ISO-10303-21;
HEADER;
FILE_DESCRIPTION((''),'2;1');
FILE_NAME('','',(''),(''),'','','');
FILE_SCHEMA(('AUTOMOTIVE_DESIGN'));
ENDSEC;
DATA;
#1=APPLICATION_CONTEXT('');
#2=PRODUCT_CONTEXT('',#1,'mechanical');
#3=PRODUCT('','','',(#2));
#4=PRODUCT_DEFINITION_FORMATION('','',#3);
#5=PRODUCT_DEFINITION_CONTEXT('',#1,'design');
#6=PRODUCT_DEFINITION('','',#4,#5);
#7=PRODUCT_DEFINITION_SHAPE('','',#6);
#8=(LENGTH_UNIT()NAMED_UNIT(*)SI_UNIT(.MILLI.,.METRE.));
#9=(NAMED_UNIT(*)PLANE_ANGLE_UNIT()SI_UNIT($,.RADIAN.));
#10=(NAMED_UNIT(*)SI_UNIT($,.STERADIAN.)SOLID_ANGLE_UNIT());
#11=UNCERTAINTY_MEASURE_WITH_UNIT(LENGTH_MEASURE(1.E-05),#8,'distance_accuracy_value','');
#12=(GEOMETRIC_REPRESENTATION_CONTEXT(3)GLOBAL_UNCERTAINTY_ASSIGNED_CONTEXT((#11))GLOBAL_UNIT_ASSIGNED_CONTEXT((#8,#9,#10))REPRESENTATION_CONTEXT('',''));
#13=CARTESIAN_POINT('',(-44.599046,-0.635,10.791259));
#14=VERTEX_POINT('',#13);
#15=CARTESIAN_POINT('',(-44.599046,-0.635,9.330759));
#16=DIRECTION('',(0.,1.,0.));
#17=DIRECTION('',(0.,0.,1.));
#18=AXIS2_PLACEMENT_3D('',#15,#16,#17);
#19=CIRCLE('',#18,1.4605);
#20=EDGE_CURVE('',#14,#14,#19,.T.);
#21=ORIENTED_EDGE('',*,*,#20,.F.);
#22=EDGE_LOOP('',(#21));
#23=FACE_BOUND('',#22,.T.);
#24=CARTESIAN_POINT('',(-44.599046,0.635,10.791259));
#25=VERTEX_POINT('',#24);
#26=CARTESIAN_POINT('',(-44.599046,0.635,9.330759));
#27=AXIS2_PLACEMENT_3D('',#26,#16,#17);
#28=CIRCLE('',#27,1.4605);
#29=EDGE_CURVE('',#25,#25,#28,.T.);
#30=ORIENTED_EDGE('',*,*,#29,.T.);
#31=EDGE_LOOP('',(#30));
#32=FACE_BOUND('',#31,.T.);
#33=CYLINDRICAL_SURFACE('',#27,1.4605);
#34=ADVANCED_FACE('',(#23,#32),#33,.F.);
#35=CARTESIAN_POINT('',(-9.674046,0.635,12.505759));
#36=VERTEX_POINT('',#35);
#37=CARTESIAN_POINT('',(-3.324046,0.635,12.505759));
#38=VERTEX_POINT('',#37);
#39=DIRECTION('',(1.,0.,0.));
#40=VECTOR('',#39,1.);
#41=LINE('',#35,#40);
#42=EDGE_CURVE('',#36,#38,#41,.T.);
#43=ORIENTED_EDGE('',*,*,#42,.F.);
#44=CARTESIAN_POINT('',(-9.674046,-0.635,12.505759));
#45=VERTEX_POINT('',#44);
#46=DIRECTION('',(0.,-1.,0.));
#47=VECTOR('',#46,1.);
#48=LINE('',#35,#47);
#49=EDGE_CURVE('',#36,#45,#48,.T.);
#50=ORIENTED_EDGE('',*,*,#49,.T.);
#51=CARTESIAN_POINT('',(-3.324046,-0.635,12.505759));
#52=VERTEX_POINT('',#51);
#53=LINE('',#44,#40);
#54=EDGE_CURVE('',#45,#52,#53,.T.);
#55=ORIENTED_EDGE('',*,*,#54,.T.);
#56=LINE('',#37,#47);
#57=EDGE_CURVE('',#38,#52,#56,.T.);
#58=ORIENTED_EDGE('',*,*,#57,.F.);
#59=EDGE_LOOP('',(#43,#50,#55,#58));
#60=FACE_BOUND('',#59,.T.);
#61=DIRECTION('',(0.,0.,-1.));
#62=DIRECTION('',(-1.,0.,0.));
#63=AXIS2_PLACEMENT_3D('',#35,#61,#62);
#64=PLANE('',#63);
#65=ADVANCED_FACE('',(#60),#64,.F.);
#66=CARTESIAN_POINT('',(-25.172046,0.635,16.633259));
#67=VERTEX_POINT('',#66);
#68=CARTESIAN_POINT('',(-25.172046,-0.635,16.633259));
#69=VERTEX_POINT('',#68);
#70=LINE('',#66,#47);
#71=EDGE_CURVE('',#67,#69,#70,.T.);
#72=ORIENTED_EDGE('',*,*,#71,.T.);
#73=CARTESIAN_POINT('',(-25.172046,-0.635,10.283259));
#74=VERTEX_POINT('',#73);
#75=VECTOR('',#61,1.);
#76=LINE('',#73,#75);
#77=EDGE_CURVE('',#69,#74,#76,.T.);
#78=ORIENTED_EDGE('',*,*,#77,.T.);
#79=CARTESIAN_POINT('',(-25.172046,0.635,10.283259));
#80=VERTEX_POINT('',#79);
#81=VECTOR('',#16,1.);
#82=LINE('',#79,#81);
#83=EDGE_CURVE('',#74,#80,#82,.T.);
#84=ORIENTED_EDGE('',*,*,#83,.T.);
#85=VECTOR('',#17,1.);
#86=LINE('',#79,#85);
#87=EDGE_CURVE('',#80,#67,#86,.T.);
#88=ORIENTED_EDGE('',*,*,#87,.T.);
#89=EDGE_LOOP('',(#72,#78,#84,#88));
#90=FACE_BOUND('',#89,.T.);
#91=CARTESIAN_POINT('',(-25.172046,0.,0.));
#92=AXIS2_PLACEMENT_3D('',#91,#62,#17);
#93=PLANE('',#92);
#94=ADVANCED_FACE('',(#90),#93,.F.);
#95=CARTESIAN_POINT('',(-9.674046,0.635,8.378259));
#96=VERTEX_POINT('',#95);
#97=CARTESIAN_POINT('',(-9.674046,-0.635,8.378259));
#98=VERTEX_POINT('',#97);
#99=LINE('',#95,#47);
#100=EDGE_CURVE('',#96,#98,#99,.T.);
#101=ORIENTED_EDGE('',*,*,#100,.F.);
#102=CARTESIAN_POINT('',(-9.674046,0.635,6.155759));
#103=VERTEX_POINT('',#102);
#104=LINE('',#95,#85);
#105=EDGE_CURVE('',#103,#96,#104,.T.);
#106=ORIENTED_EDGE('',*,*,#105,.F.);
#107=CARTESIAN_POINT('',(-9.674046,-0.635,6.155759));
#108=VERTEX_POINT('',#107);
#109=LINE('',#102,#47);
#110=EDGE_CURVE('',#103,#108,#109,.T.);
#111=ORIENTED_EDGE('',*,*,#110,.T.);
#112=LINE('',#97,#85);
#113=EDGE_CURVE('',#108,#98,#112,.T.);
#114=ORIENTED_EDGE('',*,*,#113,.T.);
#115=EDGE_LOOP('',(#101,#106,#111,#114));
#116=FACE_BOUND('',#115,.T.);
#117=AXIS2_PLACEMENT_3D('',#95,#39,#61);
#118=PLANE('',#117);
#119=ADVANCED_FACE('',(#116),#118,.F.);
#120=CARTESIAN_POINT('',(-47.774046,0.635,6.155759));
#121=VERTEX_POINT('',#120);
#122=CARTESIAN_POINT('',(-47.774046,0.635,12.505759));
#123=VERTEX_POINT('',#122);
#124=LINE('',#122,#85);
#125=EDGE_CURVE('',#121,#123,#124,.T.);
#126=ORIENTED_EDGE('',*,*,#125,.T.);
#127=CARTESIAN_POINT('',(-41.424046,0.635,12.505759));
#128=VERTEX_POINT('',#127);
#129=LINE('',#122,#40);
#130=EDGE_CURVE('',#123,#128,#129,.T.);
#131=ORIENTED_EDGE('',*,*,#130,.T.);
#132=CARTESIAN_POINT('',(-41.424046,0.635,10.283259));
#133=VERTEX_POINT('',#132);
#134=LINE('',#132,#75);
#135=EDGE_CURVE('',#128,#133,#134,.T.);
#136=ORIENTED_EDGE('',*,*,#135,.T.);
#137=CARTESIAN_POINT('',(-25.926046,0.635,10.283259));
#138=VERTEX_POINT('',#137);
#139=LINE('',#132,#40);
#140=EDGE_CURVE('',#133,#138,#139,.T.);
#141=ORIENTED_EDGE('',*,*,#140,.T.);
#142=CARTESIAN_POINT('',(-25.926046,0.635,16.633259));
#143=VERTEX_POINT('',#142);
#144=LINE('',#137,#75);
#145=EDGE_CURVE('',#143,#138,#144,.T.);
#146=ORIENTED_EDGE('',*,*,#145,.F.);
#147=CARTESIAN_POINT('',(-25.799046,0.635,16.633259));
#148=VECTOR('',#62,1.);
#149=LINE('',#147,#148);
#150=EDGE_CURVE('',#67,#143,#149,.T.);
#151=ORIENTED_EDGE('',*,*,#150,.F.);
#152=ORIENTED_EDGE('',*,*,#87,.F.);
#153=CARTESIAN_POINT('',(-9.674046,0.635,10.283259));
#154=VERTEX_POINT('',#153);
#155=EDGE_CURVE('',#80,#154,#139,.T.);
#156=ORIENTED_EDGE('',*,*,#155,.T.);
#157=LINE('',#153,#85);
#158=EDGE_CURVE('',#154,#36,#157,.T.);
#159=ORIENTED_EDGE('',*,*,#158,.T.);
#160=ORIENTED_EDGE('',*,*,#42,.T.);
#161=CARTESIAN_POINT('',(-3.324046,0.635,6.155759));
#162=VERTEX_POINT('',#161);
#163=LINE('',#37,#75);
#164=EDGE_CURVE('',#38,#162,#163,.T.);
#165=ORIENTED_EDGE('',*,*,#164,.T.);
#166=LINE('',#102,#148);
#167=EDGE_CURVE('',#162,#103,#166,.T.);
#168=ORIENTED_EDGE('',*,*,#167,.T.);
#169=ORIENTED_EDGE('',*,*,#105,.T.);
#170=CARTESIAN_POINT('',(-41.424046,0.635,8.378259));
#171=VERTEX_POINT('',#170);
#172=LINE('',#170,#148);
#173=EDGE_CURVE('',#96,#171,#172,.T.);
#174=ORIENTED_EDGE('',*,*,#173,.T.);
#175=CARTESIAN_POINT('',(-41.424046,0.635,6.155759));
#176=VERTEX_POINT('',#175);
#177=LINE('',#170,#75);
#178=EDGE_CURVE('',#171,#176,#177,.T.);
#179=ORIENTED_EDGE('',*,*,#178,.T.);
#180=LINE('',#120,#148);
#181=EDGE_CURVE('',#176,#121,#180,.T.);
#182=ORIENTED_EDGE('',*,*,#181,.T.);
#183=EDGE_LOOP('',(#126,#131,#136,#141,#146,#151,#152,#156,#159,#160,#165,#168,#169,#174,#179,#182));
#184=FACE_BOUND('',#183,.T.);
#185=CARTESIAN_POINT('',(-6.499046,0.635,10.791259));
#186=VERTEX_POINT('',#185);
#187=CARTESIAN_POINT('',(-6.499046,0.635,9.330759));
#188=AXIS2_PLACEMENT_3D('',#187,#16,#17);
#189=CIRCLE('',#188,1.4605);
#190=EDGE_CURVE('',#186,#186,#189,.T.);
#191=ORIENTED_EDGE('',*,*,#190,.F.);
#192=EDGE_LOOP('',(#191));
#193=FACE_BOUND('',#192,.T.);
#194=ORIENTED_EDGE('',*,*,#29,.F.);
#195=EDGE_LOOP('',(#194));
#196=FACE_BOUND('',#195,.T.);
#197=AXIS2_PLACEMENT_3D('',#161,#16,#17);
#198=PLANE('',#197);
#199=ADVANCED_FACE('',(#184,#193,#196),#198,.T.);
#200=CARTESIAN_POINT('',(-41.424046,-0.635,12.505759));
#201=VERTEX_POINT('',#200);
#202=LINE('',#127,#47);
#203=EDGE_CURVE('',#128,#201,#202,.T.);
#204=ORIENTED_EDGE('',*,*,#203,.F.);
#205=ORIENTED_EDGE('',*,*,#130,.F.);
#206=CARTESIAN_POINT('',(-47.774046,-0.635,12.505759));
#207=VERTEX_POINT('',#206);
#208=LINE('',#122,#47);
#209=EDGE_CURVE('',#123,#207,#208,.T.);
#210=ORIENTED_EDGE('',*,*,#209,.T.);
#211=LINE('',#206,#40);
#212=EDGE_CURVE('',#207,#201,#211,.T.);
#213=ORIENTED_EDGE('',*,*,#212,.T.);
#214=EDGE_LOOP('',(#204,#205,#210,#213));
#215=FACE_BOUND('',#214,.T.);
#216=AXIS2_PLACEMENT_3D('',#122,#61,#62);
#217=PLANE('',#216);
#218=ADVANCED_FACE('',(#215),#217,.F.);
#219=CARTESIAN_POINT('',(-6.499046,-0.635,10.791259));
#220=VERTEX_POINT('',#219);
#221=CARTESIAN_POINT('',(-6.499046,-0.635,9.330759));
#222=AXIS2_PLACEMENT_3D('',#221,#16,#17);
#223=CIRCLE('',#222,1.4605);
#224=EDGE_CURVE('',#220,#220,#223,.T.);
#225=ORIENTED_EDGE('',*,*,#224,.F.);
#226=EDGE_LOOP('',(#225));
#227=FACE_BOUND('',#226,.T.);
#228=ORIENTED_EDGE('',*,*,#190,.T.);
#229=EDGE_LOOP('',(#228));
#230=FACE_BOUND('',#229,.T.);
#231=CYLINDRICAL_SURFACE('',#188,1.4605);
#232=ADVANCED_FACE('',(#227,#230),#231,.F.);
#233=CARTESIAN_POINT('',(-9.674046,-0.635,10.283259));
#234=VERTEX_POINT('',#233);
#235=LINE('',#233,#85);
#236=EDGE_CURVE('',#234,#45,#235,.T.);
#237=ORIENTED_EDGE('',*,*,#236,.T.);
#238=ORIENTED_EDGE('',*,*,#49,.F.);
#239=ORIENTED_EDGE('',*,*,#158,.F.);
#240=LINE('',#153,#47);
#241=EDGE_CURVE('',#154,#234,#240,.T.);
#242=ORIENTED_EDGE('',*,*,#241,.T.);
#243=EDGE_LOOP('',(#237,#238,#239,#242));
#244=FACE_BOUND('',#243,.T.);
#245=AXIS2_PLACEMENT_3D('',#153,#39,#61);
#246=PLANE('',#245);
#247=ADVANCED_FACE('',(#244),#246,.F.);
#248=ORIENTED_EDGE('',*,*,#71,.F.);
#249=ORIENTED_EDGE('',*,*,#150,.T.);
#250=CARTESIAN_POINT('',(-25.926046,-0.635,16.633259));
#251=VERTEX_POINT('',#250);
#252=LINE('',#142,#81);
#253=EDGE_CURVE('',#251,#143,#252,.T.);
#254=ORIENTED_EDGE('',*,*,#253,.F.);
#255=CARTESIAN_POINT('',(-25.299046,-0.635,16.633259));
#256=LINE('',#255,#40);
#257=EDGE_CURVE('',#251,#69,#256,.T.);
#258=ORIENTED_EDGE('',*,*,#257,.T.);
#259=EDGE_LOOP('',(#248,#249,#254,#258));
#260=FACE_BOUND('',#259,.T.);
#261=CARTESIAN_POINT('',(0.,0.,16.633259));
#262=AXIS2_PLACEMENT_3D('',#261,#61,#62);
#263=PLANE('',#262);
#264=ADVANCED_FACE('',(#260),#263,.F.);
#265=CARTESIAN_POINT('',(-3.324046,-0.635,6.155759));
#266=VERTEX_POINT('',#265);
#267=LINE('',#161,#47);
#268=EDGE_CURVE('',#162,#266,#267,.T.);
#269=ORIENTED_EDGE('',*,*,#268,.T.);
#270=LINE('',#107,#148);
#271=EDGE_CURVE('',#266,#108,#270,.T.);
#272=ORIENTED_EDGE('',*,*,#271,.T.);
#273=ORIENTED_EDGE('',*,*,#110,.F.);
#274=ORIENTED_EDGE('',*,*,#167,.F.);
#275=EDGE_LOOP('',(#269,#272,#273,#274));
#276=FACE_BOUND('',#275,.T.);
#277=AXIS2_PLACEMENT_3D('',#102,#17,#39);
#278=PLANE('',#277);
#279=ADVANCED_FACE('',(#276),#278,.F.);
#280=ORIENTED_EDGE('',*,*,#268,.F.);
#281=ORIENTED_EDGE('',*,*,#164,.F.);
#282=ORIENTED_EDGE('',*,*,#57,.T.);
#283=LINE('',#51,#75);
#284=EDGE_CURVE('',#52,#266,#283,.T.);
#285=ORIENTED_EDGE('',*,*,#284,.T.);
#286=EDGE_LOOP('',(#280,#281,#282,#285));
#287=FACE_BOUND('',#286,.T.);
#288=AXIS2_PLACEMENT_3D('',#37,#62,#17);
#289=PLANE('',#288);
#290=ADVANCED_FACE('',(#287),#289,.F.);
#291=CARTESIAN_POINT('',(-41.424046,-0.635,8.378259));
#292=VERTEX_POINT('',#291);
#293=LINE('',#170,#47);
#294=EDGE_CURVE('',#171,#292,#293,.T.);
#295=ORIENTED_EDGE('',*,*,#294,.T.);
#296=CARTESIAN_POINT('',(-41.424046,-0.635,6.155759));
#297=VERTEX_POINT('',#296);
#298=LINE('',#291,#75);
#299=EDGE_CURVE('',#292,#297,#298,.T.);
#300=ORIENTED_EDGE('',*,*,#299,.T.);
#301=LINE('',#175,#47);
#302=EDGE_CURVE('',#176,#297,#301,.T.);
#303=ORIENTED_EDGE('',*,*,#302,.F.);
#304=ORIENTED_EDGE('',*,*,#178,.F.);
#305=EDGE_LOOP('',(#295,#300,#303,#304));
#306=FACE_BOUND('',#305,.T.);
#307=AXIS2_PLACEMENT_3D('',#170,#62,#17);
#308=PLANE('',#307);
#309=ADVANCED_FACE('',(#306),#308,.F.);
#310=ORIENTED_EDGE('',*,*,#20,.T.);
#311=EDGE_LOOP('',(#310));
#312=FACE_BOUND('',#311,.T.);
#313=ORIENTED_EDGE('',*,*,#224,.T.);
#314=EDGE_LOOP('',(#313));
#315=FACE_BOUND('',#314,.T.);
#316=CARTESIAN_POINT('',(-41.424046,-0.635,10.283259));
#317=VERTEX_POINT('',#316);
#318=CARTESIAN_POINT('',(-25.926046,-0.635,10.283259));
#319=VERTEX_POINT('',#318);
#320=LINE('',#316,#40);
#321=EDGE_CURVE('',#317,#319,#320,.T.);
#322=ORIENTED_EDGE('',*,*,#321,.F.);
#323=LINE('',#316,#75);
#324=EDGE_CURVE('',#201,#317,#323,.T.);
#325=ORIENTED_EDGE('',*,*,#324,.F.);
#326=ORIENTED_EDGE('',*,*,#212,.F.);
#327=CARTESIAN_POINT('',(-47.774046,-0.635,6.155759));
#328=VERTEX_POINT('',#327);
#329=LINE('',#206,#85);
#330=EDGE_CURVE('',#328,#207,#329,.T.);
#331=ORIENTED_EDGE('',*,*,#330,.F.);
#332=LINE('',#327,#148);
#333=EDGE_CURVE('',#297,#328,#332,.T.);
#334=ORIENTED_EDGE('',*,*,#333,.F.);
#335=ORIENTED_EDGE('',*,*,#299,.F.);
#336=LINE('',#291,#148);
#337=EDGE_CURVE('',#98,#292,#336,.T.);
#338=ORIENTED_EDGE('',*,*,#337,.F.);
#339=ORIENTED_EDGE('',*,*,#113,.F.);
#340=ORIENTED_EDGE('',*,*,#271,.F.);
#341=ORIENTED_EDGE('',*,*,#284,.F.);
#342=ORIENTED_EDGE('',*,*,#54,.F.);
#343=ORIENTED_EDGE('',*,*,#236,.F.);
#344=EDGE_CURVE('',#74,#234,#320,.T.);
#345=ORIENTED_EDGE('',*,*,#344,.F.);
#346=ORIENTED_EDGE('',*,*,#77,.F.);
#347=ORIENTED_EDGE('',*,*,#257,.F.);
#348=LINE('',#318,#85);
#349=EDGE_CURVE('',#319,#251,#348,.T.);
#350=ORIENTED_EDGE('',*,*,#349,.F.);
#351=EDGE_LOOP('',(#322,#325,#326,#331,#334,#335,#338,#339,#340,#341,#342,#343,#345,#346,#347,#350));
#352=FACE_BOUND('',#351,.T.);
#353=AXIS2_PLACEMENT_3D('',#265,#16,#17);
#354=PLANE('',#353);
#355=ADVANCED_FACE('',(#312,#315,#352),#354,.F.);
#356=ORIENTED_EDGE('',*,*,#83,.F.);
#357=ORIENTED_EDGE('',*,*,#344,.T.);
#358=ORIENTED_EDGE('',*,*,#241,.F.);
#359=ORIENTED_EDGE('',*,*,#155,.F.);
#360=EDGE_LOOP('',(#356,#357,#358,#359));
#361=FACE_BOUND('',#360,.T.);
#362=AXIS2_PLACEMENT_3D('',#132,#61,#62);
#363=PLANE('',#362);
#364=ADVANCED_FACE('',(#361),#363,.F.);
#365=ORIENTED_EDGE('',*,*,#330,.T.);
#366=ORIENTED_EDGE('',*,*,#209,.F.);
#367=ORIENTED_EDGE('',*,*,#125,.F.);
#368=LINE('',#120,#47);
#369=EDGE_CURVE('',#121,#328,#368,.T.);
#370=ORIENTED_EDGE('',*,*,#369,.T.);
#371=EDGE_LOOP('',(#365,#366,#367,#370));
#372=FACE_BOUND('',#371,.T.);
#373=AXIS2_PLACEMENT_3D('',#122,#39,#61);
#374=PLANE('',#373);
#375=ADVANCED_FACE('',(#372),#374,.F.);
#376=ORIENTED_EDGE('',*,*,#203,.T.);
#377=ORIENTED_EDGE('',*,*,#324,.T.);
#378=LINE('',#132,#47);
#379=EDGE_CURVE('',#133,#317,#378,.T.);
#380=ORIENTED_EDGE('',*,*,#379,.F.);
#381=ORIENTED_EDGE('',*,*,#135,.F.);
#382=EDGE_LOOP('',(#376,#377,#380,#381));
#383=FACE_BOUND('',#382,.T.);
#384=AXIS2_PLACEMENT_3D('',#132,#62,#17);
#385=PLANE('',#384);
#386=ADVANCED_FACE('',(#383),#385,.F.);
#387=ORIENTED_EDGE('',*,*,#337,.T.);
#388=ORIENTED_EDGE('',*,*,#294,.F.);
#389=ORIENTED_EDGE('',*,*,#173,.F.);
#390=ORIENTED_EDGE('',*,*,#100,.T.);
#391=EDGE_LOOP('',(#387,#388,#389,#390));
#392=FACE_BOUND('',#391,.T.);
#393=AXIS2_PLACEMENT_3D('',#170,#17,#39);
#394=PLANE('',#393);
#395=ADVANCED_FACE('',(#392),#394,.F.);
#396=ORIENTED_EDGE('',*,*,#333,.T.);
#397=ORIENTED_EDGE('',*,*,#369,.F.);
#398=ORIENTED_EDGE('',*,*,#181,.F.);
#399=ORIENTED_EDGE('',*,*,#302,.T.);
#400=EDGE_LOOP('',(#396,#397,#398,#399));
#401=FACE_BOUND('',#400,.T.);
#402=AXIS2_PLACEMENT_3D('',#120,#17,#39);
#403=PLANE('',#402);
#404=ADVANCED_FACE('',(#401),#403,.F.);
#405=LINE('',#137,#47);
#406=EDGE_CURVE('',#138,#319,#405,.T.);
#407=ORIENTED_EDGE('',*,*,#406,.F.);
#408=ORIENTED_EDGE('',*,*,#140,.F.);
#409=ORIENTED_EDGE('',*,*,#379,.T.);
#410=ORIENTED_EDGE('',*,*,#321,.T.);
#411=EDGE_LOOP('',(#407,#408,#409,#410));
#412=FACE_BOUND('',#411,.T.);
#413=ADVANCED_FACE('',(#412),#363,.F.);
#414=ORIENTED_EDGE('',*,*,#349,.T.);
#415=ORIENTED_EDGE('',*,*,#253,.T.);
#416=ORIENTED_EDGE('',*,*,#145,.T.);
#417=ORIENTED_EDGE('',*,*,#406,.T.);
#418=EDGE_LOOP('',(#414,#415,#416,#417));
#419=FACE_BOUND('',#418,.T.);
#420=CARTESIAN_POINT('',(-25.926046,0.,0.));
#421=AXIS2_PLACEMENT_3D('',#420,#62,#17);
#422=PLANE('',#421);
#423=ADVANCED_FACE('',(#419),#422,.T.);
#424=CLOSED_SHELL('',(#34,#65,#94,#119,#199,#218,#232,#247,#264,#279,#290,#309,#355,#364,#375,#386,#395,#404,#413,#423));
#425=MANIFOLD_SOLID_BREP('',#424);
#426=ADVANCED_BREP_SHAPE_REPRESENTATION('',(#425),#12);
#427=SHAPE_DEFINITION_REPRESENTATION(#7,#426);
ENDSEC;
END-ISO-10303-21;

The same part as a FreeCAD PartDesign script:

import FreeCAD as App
import Part
import Sketcher
Q = App.Units.Quantity


def add_polygon(sketch, points):
    """Adds a closed chain of lines whose ends are joined by coincident constraints."""
    first, n = sketch.GeometryCount, len(points)
    for a, b in zip(points, points[1:] + points[:1]):
        sketch.addGeometry(Part.LineSegment(App.Vector(*a, 0), App.Vector(*b, 0)), False)
    for i in range(n):
        sketch.addConstraint(Sketcher.Constraint("Coincident", first + i, 2, first + (i + 1) % n, 1))

doc = App.newDocument("Part")
body = doc.addObject("PartDesign::Body", "Body")

# Sketch on XZ plane
sketch1 = body.newObject("Sketcher::SketchObject", "Sketch")
sketch1.AttachmentSupport = (doc.getObject("XZ_Plane"), [""])
sketch1.MapMode = "FlatFace"
add_polygon(sketch1, [(-41.4, 12.5), (-41.4, 10.3), (-9.7, 10.3), (-9.7, 12.5), (-3.3, 12.5), (-3.3, 6.2), (-9.7, 6.2), (-9.7, 8.4), (-41.4, 8.4), (-41.4, 6.2), (-47.8, 6.2), (-47.8, 12.5)])  # lines 0-11
sketch1.addConstraint([
    Sketcher.Constraint("Vertical", 0),
    Sketcher.Constraint("Horizontal", 1),
    Sketcher.Constraint("Vertical", 2),
    Sketcher.Constraint("Horizontal", 3),
    Sketcher.Constraint("Vertical", 4),
    Sketcher.Constraint("Horizontal", 5),
    Sketcher.Constraint("Vertical", 6),
    Sketcher.Constraint("Horizontal", 7),
    Sketcher.Constraint("Vertical", 8),
    Sketcher.Constraint("Horizontal", 9),
    Sketcher.Constraint("Vertical", 10),
    Sketcher.Constraint("Horizontal", 11),
    Sketcher.Constraint("Horizontal", 5, 2, 8, 2),
    Sketcher.Constraint("Horizontal", 3, 2, 10, 2),
    Sketcher.Constraint("Vertical", 2, 2, 5, 2),
    Sketcher.Constraint("Vertical", 0, 2, 7, 2),
    Sketcher.Constraint("Equal", 5, 9),
    Sketcher.Constraint("Equal", 11, 4),
    Sketcher.Constraint("Equal", 2, 6),
    Sketcher.Constraint("DistanceX", 1, 1, 1, 2, Q("1.25 in")),
    Sketcher.Constraint("DistanceX", 3, 1, 3, 2, Q("0.25 in")),
    Sketcher.Constraint("DistanceY", 0, 2, 0, 1, Q("0.0875 in")),
    Sketcher.Constraint("DistanceY", -1, 1, 0, 2, 10.283259),
    Sketcher.Constraint("DistanceX", 0, 2, -1, 1, 41.424046),
])
pad1 = body.newObject("PartDesign::Pad", "Pad")
pad1.Profile = sketch1
pad1.Length = Q("0.05 in")
pad1.Midplane = True

# Sketch on XZ plane
sketch2 = body.newObject("Sketcher::SketchObject", "Sketch001")
sketch2.AttachmentSupport = (doc.getObject("XZ_Plane"), [""])
sketch2.MapMode = "FlatFace"
sketch2.AttachmentOffset = App.Placement(App.Vector(0, 0, -0.025 * 25.4), App.Rotation())
sketch2.addGeometry(Part.Circle(App.Vector(-44.6, 9.3, 0), App.Vector(0, 0, 1), 1.5), False)
sketch2.addConstraint([
    Sketcher.Constraint("Diameter", 0, Q("0.115 in")),
    Sketcher.Constraint("DistanceY", -1, 1, 0, 3, 9.330759),
    Sketcher.Constraint("DistanceX", 0, 3, -1, 1, 44.599046),
])
doc.recompute()
hole = body.newObject("PartDesign::Hole", "Hole")
hole.Profile = sketch2
hole.ThreadType = "None"
hole.Diameter = Q("0.115 in")
hole.DepthType = "ThroughAll"
hole.Reversed = True
doc.recompute()

datumplane = body.newObject("PartDesign::Plane", "DatumPlane")
datumplane.AttachmentSupport = (doc.getObject("YZ_Plane"), [""])
datumplane.MapMode = "FlatFace"
datumplane.AttachmentOffset = App.Placement(App.Vector(0, 0, -25.549046), App.Rotation())
mirrored = body.newObject("PartDesign::Mirrored", "Mirrored")
mirrored.Originals = [hole]
mirrored.MirrorPlane = (datumplane, [""])
body.Tip = mirrored

# Sketch on XY plane
sketch3 = body.newObject("Sketcher::SketchObject", "Sketch002")
sketch3.AttachmentSupport = (doc.getObject("XY_Plane"), [""])
sketch3.MapMode = "FlatFace"
sketch3.AttachmentOffset = App.Placement(App.Vector(0, 0, 10.283259), App.Rotation())
add_polygon(sketch3, [(-25.8, 0.6), (-25.8, -0.6), (-25.3, -0.6), (-25.3, 0.6)])  # lines 0-3
sketch3.addConstraint([
    Sketcher.Constraint("Vertical", 0),
    Sketcher.Constraint("Horizontal", 1),
    Sketcher.Constraint("Vertical", 2),
    Sketcher.Constraint("Horizontal", 3),
    Sketcher.Constraint("DistanceY", 0, 2, 0, 1, Q("0.05 in")),
    Sketcher.Constraint("DistanceY", 0, 2, -1, 1, Q("0.025 in")),
    Sketcher.Constraint("DistanceX", 1, 1, 1, 2, 0.5),
    Sketcher.Constraint("DistanceX", 0, 2, -1, 1, 25.799046),
])
pad2 = body.newObject("PartDesign::Pad", "Pad001")
pad2.Profile = sketch3
pad2.Length = Q("0.25 in")

# Sketch on YZ plane
sketch4 = body.newObject("Sketcher::SketchObject", "Sketch003")
sketch4.AttachmentSupport = (doc.getObject("YZ_Plane"), [""])
sketch4.MapMode = "FlatFace"
sketch4.AttachmentOffset = App.Placement(App.Vector(0, 0, -25.799046), App.Rotation())
add_polygon(sketch4, [(0.6, 10.3), (-0.6, 10.3), (-0.6, 16.6), (0.6, 16.6)])  # lines 0-3
sketch4.addConstraint([
    Sketcher.Constraint("Horizontal", 0),
    Sketcher.Constraint("Vertical", 1),
    Sketcher.Constraint("Horizontal", 2),
    Sketcher.Constraint("Vertical", 3),
    Sketcher.Constraint("DistanceX", 0, 2, 0, 1, Q("0.05 in")),
    Sketcher.Constraint("DistanceY", 1, 1, 1, 2, Q("0.25 in")),
    Sketcher.Constraint("DistanceX", 0, 2, -1, 1, Q("0.025 in")),
    Sketcher.Constraint("DistanceY", -1, 1, 0, 2, 10.283259),
])
pad3 = body.newObject("PartDesign::Pad", "Pad002")
pad3.Profile = sketch4
pad3.Length = Q("0.005 in")
pad3.Reversed = True

# Sketch on YZ plane
sketch5 = body.newObject("Sketcher::SketchObject", "Sketch004")
sketch5.AttachmentSupport = (doc.getObject("YZ_Plane"), [""])
sketch5.MapMode = "FlatFace"
sketch5.AttachmentOffset = App.Placement(App.Vector(0, 0, -25.299046), App.Rotation())
add_polygon(sketch5, [(0.6, 16.6), (-0.6, 16.6), (-0.6, 10.3), (0.6, 10.3)])  # lines 0-3
sketch5.addConstraint([
    Sketcher.Constraint("Horizontal", 0),
    Sketcher.Constraint("Vertical", 1),
    Sketcher.Constraint("Horizontal", 2),
    Sketcher.Constraint("Vertical", 3),
    Sketcher.Constraint("DistanceX", 0, 2, 0, 1, Q("0.05 in")),
    Sketcher.Constraint("DistanceY", 1, 2, 1, 1, Q("0.25 in")),
    Sketcher.Constraint("DistanceX", 0, 2, -1, 1, Q("0.025 in")),
    Sketcher.Constraint("DistanceY", -1, 1, 0, 2, 16.633259),
])
pad4 = body.newObject("PartDesign::Pad", "Pad003")
pad4.Profile = sketch5
pad4.Length = Q("0.005 in")

doc.recompute()
